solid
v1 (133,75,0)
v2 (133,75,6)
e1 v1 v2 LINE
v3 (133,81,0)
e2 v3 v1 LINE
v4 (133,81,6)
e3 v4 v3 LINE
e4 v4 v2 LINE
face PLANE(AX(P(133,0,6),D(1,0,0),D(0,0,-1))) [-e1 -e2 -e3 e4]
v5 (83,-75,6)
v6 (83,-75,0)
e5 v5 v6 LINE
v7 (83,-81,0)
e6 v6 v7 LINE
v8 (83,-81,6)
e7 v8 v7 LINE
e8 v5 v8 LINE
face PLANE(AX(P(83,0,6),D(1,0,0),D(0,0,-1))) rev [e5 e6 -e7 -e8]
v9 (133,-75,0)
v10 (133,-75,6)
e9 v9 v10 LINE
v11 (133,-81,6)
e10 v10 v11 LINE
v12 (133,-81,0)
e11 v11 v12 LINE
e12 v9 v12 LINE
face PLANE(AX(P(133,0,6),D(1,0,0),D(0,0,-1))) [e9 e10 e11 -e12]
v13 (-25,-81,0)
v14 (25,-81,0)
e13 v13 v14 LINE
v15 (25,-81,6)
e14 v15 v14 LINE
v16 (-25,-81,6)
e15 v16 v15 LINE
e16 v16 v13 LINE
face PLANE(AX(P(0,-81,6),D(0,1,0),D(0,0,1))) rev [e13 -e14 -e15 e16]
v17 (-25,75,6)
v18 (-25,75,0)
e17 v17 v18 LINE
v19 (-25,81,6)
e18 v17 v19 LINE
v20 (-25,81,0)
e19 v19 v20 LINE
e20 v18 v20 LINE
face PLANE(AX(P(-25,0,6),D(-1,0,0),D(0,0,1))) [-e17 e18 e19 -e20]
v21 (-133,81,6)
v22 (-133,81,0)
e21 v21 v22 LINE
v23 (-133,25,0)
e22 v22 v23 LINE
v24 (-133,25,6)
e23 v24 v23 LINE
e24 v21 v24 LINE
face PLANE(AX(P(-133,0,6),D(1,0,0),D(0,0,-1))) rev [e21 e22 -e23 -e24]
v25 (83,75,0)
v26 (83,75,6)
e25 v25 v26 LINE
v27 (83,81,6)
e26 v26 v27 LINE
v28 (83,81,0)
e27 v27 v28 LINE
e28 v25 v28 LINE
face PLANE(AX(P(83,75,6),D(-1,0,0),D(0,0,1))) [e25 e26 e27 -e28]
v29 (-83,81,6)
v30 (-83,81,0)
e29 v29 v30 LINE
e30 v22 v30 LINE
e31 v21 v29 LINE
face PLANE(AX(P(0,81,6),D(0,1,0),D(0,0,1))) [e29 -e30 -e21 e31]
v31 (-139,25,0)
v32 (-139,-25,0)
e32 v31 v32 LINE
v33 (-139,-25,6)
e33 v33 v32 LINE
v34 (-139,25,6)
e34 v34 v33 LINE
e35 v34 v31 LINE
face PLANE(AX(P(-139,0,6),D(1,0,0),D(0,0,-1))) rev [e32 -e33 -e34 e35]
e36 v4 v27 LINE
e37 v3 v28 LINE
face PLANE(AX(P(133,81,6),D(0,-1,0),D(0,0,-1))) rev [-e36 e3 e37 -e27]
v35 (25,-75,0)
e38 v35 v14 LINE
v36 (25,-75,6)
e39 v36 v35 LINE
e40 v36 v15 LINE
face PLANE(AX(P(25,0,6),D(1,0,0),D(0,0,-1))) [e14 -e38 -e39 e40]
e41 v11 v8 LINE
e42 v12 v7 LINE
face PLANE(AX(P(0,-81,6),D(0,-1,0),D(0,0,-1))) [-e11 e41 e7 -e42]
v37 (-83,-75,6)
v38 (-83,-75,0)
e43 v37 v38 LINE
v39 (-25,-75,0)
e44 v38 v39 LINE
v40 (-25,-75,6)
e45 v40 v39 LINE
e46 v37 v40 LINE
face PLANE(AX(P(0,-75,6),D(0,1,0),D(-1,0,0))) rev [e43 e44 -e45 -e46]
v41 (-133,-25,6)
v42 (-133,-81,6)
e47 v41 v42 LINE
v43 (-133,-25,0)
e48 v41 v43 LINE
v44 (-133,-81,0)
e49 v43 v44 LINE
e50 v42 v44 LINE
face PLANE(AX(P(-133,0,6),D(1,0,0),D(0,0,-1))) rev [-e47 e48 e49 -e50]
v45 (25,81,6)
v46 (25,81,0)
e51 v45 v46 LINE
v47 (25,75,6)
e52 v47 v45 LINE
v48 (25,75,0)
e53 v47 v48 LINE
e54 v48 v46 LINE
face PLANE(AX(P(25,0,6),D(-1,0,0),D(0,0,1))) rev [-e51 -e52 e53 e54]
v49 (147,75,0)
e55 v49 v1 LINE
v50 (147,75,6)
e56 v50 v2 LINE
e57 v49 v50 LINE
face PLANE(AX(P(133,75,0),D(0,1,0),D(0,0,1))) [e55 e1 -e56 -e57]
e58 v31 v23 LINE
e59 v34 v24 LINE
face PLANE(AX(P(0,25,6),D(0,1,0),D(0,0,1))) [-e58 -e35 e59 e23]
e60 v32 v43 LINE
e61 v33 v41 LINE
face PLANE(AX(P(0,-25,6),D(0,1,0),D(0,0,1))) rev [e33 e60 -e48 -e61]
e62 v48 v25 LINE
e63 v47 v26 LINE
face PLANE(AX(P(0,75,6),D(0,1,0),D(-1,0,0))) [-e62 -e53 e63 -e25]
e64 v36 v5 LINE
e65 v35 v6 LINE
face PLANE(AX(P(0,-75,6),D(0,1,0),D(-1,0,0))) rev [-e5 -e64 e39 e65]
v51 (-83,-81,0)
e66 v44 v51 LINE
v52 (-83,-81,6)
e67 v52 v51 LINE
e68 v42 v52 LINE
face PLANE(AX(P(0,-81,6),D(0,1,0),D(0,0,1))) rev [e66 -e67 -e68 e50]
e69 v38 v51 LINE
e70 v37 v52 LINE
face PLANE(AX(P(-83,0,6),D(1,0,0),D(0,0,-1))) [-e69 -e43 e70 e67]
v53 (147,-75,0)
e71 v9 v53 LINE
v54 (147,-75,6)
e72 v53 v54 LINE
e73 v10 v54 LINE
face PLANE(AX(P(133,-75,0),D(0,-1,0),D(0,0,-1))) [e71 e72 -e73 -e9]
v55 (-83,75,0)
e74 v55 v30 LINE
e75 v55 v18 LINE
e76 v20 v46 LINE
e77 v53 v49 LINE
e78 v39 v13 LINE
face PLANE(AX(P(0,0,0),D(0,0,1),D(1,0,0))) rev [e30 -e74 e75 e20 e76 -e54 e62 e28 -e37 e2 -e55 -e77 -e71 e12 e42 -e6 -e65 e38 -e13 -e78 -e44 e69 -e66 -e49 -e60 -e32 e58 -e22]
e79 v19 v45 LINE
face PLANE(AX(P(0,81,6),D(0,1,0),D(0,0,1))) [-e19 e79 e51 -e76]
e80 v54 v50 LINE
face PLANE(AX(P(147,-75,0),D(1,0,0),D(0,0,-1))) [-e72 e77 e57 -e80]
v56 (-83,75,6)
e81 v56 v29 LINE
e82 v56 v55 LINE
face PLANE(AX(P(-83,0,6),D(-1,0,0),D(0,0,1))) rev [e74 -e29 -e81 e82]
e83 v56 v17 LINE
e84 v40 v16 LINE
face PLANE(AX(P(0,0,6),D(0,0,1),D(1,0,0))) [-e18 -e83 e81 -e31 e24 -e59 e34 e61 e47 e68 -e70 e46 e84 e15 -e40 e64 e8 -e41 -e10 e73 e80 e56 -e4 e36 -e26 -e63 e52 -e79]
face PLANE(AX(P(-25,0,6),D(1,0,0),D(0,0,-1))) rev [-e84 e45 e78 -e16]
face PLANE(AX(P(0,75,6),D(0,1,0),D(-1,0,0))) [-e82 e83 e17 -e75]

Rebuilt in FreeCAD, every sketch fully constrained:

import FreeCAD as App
import Part
import Sketcher
from FreeCAD import Vector
Q = App.Units.Quantity


def add_polygon(sketch, points):
    """Adds a closed chain of lines whose ends are joined by coincident constraints."""
    first, n = sketch.GeometryCount, len(points)
    for a, b in zip(points, points[1:] + points[:1]):
        sketch.addGeometry(Part.LineSegment(App.Vector(*a, 0), App.Vector(*b, 0)), False)
    for i in range(n):
        sketch.addConstraint(Sketcher.Constraint("Coincident", first + i, 2, first + (i + 1) % n, 1))

doc = App.newDocument("Part")
body = doc.addObject("PartDesign::Body", "Body")

# Sketch on XY plane
sketch1 = doc.addObject("Sketcher::SketchObject", "Sketch")
body.addObject(sketch1)
sketch1.AttachmentSupport = (doc.XY_Plane, [""])
sketch1.MapMode = "FlatFace"
add_polygon(sketch1, [(-83, -75), (-25, -75), (-25, -81), (25, -81), (25, -75), (83, -75), (83, -81), (133, -81), (133, 81), (83, 81), (83, 75), (25, 75), (25, 81), (-25, 81), (-25, 75), (-83, 75), (-83, 81), (-133, 81), (-133, 25), (-139, 25), (-139, -25), (-133, -25), (-133, -81), (-83, -81)])  # lines 0-23
sketch1.addConstraint([
    Sketcher.Constraint("Horizontal", 0),
    Sketcher.Constraint("Vertical", 1),
    Sketcher.Constraint("Horizontal", 2),
    Sketcher.Constraint("Vertical", 3),
    Sketcher.Constraint("Horizontal", 4),
    Sketcher.Constraint("Vertical", 5),
    Sketcher.Constraint("Horizontal", 6),
    Sketcher.Constraint("Vertical", 7),
    Sketcher.Constraint("Horizontal", 8),
    Sketcher.Constraint("Vertical", 9),
    Sketcher.Constraint("Horizontal", 10),
    Sketcher.Constraint("Vertical", 11),
    Sketcher.Constraint("Horizontal", 12),
    Sketcher.Constraint("Vertical", 13),
    Sketcher.Constraint("Horizontal", 14),
    Sketcher.Constraint("Vertical", 15),
    Sketcher.Constraint("Horizontal", 16),
    Sketcher.Constraint("Vertical", 17),
    Sketcher.Constraint("Horizontal", 18),
    Sketcher.Constraint("Vertical", 19),
    Sketcher.Constraint("Horizontal", 20),
    Sketcher.Constraint("Vertical", 21),
    Sketcher.Constraint("Horizontal", 22),
    Sketcher.Constraint("Vertical", 23),
    Sketcher.Constraint("Symmetric", 0, 2, 10, 2, -1, 1),
    Sketcher.Constraint("Symmetric", 2, 2, 12, 2, -1, 1),
    Sketcher.Constraint("Symmetric", 4, 2, 14, 2, -1, 1),
    Sketcher.Constraint("Symmetric", 6, 2, 16, 2, -1, 1),
    Sketcher.Constraint("Symmetric", 7, 2, 21, 2, -1, 1),
    Sketcher.Constraint("Symmetric", 0, 2, 3, 2, -2),
    Sketcher.Constraint("Symmetric", 8, 2, 15, 2, -2),
    Sketcher.Constraint("Horizontal", 2, 2, 5, 2),
    Sketcher.Constraint("Vertical", 15, 2, 22, 2),
    Sketcher.Constraint("Equal", 2, 6),
    Sketcher.Constraint("Equal", 20, 1),
    Sketcher.Constraint("Equal", 22, 19),
    Sketcher.Constraint("Equal", 17, 21),
    Sketcher.Constraint("DistanceX", 0, 1, 0, 2, Q("58 mm")),
    Sketcher.Constraint("DistanceX", 2, 1, 2, 2, Q("50 mm")),
    Sketcher.Constraint("DistanceX", 18, 2, 18, 1, Q("6 mm")),
    Sketcher.Constraint("DistanceY", 7, 1, 7, 2, Q("162 mm")),
])
pad1 = doc.addObject("PartDesign::Pad", "Pad")
body.addObject(pad1)
pad1.Profile = sketch1
pad1.Length = 6

# Sketch on XY plane
sketch2 = doc.addObject("Sketcher::SketchObject", "Sketch001")
body.addObject(sketch2)
sketch2.AttachmentSupport = (doc.XY_Plane, [""])
sketch2.MapMode = "FlatFace"
sketch2.AttachmentOffset = App.Placement(Vector(0, 0, 6), App.Rotation())
add_polygon(sketch2, [(133, 75), (133, -75), (147, -75), (147, 75)])  # lines 0-3
sketch2.addConstraint([
    Sketcher.Constraint("Vertical", 0),
    Sketcher.Constraint("Horizontal", 1),
    Sketcher.Constraint("Vertical", 2),
    Sketcher.Constraint("Horizontal", 3),
    Sketcher.Constraint("DistanceX", 1, 1, 1, 2, Q("14 mm")),
    Sketcher.Constraint("DistanceY", 0, 2, 0, 1, Q("150 mm")),
    Sketcher.Constraint("DistanceX", -1, 1, 0, 2, Q("133 mm")),
    Sketcher.Constraint("DistanceY", 0, 2, -1, 1, Q("75 mm")),
])
pad2 = doc.addObject("PartDesign::Pad", "Pad001")
body.addObject(pad2)
pad2.Profile = sketch2
pad2.Length = 6
pad2.Reversed = True

doc.recompute()
